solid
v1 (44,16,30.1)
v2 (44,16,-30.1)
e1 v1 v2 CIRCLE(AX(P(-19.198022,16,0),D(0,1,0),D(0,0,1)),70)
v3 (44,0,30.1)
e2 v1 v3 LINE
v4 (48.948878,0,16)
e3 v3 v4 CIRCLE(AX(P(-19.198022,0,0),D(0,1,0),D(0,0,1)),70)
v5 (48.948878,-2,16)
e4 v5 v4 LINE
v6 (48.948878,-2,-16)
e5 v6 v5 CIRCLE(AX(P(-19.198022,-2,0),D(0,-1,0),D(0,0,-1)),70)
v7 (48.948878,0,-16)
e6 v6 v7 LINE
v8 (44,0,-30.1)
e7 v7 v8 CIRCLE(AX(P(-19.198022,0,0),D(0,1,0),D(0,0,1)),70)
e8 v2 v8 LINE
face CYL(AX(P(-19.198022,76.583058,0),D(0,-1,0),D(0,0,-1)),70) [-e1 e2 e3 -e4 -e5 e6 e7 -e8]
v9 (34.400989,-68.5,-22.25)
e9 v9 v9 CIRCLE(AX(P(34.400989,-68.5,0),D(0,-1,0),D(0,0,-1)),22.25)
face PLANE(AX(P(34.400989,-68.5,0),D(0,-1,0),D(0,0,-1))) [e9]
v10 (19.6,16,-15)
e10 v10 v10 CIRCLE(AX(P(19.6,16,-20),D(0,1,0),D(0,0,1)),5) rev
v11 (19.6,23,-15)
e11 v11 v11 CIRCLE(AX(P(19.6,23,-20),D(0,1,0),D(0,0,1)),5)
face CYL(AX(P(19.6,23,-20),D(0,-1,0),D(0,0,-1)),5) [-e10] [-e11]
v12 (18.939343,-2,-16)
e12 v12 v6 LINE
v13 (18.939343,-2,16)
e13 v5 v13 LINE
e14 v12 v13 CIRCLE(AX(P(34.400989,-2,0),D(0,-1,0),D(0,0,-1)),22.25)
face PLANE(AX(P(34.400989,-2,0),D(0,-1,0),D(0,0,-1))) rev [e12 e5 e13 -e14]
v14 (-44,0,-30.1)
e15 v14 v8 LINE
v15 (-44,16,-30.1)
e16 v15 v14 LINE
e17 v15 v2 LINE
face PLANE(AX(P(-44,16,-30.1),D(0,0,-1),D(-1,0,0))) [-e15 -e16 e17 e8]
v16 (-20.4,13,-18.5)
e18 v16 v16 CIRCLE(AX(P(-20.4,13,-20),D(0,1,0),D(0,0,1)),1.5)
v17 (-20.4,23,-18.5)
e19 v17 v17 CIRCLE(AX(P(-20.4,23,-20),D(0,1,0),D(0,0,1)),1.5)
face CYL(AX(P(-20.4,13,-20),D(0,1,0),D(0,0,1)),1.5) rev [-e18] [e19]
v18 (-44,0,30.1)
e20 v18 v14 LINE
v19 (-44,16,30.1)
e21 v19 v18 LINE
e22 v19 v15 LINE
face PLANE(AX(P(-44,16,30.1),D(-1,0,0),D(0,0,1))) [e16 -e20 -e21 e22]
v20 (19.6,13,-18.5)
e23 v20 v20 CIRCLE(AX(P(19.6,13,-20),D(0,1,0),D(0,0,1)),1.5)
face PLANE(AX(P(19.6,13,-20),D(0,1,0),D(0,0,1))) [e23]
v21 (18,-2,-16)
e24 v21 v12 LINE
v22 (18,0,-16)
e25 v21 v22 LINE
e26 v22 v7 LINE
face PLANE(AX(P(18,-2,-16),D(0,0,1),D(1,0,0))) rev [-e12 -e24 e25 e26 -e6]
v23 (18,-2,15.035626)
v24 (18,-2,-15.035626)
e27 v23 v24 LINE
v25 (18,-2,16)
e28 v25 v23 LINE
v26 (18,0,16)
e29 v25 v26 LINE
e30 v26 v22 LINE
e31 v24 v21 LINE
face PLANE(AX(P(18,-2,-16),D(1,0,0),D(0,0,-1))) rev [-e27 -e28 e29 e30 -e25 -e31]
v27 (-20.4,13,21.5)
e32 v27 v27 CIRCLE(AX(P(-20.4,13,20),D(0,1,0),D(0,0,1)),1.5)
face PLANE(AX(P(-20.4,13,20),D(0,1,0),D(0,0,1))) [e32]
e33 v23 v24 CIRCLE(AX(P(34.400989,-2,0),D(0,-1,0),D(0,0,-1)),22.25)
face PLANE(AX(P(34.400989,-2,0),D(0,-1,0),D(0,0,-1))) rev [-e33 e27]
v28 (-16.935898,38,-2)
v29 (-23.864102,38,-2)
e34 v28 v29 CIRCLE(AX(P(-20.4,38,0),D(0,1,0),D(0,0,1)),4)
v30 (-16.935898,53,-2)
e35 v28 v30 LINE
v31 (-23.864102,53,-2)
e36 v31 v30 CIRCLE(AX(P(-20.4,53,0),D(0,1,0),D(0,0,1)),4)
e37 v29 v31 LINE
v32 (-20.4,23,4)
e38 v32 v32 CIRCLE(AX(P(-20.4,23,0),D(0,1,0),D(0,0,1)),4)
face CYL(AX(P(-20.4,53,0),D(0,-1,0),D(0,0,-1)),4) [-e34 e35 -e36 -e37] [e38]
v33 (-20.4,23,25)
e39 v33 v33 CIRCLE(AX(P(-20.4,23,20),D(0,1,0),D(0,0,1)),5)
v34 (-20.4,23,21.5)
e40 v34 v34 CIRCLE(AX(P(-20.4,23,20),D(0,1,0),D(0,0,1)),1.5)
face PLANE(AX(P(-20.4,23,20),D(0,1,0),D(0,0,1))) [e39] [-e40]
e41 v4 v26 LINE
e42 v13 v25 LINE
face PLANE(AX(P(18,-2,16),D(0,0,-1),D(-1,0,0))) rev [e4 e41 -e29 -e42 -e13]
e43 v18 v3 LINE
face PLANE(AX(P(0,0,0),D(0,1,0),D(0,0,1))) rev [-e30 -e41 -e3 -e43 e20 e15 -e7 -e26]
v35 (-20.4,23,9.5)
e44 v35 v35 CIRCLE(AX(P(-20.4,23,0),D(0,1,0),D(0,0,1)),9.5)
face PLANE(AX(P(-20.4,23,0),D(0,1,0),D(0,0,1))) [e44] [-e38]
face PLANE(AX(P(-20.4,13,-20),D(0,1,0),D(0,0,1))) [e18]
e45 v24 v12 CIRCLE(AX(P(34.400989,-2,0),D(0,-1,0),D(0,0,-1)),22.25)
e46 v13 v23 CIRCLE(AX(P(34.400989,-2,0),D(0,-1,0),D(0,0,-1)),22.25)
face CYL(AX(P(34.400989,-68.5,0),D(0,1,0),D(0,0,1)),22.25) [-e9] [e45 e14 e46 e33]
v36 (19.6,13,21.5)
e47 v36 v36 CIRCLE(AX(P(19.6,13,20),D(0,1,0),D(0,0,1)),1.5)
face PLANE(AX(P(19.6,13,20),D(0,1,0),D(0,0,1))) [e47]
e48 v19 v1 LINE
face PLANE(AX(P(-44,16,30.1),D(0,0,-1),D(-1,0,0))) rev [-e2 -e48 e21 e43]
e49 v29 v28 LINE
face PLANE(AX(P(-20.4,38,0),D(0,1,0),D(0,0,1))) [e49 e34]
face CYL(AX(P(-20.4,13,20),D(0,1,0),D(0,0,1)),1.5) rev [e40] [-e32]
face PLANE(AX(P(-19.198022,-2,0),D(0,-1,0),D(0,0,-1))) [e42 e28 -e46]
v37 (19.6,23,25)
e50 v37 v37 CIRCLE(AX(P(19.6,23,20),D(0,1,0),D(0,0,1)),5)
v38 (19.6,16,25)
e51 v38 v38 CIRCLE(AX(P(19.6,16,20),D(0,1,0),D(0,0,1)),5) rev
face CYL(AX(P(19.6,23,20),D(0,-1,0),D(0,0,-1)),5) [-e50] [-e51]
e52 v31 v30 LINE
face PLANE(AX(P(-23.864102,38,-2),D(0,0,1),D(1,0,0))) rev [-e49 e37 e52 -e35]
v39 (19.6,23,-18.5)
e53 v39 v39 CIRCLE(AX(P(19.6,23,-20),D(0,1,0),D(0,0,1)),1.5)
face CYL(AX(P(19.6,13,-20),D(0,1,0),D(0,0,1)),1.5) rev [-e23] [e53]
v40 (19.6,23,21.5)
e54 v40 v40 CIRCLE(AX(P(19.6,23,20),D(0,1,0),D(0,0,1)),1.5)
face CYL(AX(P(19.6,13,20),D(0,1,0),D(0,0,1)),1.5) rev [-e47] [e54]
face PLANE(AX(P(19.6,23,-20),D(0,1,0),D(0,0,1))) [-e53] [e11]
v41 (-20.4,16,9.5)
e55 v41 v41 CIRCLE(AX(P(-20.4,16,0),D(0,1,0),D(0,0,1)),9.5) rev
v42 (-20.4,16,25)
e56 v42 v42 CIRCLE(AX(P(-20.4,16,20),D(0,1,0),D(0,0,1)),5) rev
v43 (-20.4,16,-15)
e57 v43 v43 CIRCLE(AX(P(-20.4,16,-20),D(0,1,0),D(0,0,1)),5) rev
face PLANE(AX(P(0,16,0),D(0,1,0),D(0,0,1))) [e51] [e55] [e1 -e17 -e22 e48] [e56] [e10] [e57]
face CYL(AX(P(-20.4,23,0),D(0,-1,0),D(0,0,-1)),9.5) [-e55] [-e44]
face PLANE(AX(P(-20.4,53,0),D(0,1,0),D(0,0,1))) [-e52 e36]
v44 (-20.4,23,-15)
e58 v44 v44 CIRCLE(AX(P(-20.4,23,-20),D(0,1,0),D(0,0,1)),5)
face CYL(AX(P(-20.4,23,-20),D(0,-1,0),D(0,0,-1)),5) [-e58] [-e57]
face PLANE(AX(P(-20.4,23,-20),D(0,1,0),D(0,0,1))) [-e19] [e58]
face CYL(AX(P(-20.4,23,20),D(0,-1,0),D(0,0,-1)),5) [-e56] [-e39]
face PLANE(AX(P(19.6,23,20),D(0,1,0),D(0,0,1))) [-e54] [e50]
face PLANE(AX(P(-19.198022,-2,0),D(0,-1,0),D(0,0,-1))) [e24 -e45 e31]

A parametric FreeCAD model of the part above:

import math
import FreeCAD as App
import Part
import Sketcher
from FreeCAD import Vector


def add_polygon(sketch, points):
    """Adds a closed chain of lines whose ends are joined by coincident constraints."""
    first, n = sketch.GeometryCount, len(points)
    for a, b in zip(points, points[1:] + points[:1]):
        sketch.addGeometry(Part.LineSegment(App.Vector(*a, 0), App.Vector(*b, 0)), False)
    for i in range(n):
        sketch.addConstraint(Sketcher.Constraint("Coincident", first + i, 2, first + (i + 1) % n, 1))

doc = App.newDocument("Part")
body = doc.addObject("PartDesign::Body", "Body")

# Sketch on XZ plane
sketch1 = body.newObject("Sketcher::SketchObject", "Sketch")
sketch1.AttachmentSupport = (doc.getObject("XZ_Plane"), [""])
sketch1.MapMode = "FlatFace"
add_polygon(sketch1, [(-44, -30), (-44, 30), (44, 30), (44, -30)])  # lines 0-3
sketch1.addConstraint(Sketcher.Constraint("Vertical", 0))
sketch1.addConstraint(Sketcher.Constraint("Horizontal", 1))
sketch1.addConstraint(Sketcher.Constraint("Vertical", 2))
sketch1.addConstraint(Sketcher.Constraint("Horizontal", 3))
sketch1.addConstraint(Sketcher.Constraint("Symmetric", 0, 2, 2, 2, -1, 1))
sketch1.addConstraint(Sketcher.Constraint("DistanceX", 1, 1, 1, 2, 88.0))
sketch1.addConstraint(Sketcher.Constraint("DistanceY", 0, 1, 0, 2, 60.2))
pad1 = body.newObject("PartDesign::Pad", "Pad")
pad1.Profile = sketch1
pad1.Length = 16
pad1.Reversed = True

# Sketch on XZ plane
sketch2 = body.newObject("Sketcher::SketchObject", "Sketch001")
sketch2.AttachmentSupport = (doc.getObject("XZ_Plane"), [""])
sketch2.MapMode = "FlatFace"
sketch2.addGeometry(Part.Circle(Vector(-20, -20, 0), Vector(0, 0, 1), 5), False)
sketch2.addGeometry(Part.Circle(Vector(20, -20, 0), Vector(0, 0, 1), 5), False)
sketch2.addGeometry(Part.Circle(Vector(20, 20, 0), Vector(0, 0, 1), 5), False)
sketch2.addGeometry(Part.Circle(Vector(-20, 20, 0), Vector(0, 0, 1), 5), False)
sketch2.addGeometry(Part.Circle(Vector(-20, 0, 0), Vector(0, 0, 1), 10), False)
sketch2.addConstraint(Sketcher.Constraint("Equal", 0, 1))
sketch2.addConstraint(Sketcher.Constraint("Equal", 1, 2))
sketch2.addConstraint(Sketcher.Constraint("Equal", 2, 3))
sketch2.addConstraint(Sketcher.Constraint("Symmetric", 1, 3, 2, 3, -1))
sketch2.addConstraint(Sketcher.Constraint("Symmetric", 0, 3, 3, 3, -1))
sketch2.addConstraint(Sketcher.Constraint("PointOnObject", 4, 3, -1))
sketch2.addConstraint(Sketcher.Constraint("Horizontal", 0, 3, 1, 3))
sketch2.addConstraint(Sketcher.Constraint("Vertical", 3, 3, 4, 3))
sketch2.addConstraint(Sketcher.Constraint("Diameter", 0, 10.0))
sketch2.addConstraint(Sketcher.Constraint("Diameter", 4, 19.0))
sketch2.addConstraint(Sketcher.Constraint("DistanceY", 0, 3, -1, 1, 20.0))
sketch2.addConstraint(Sketcher.Constraint("DistanceX", 0, 3, 1, 3, 40.0))
sketch2.addConstraint(Sketcher.Constraint("DistanceX", 0, 3, -1, 1, 20.4))
pad2 = body.newObject("PartDesign::Pad", "Pad001")
pad2.Profile = sketch2
pad2.Length = 23
pad2.Reversed = True

# Sketch on XZ plane
sketch3 = body.newObject("Sketcher::SketchObject", "Sketch002")
sketch3.AttachmentSupport = (doc.getObject("XZ_Plane"), [""])
sketch3.MapMode = "FlatFace"
sketch3.AttachmentOffset = App.Placement(Vector(0, 0, -23), App.Rotation())
sketch3.addGeometry(Part.Circle(Vector(-20.4, 0, 0), Vector(0, 0, 1), 4), False)
sketch3.addConstraint(Sketcher.Constraint("PointOnObject", 0, 3, -1))
sketch3.addConstraint(Sketcher.Constraint("Diameter", 0, 8.0))
sketch3.addConstraint(Sketcher.Constraint("DistanceX", 0, 3, -1, 1, 20.4))
pad3 = body.newObject("PartDesign::Pad", "Pad002")
pad3.Profile = sketch3
pad3.Length = 30
pad3.Reversed = True

# Sketch on XZ plane
sketch4 = body.newObject("Sketcher::SketchObject", "Sketch003")
sketch4.AttachmentSupport = (doc.getObject("XZ_Plane"), [""])
sketch4.MapMode = "FlatFace"
sketch4.AttachmentOffset = App.Placement(Vector(0, 0, -53), App.Rotation())
sketch4.addGeometry(Part.LineSegment(Vector(-23.9, -2, 0), Vector(-16.9, -2, 0)), False)
sketch4.addGeometry(Part.ArcOfCircle(Part.Circle(Vector(-20.4, 0, 0), Vector(0, 0, 1), 4), math.radians(-150), math.radians(-30)), False)
sketch4.addConstraint(Sketcher.Constraint("Coincident", 0, 1, 1, 1))
sketch4.addConstraint(Sketcher.Constraint("Coincident", 1, 2, 0, 2))
sketch4.addConstraint(Sketcher.Constraint("Horizontal", 0))
sketch4.addConstraint(Sketcher.Constraint("PointOnObject", 1, 3, -1))
sketch4.addConstraint(Sketcher.Constraint("Radius", 1, 4.0))
sketch4.addConstraint(Sketcher.Constraint("DistanceY", 0, 1, -1, 1, 2.0))
sketch4.addConstraint(Sketcher.Constraint("DistanceX", 1, 3, -1, 1, 20.4))
pocket1 = body.newObject("PartDesign::Pocket", "Pocket")
pocket1.Profile = sketch4
pocket1.Length = 15
pocket1.Reversed = True

# Sketch on XZ plane
sketch5 = body.newObject("Sketcher::SketchObject", "Sketch004")
sketch5.AttachmentSupport = (doc.getObject("XZ_Plane"), [""])
sketch5.MapMode = "FlatFace"
sketch5.AttachmentOffset = App.Placement(Vector(0, 0, -23), App.Rotation())
sketch5.addGeometry(Part.Circle(Vector(-20.4, -20, 0), Vector(0, 0, 1), 1.5), False)
sketch5.addGeometry(Part.Circle(Vector(19.6, -20, 0), Vector(0, 0, 1), 1.5), False)
sketch5.addGeometry(Part.Circle(Vector(19.6, 20, 0), Vector(0, 0, 1), 1.5), False)
sketch5.addGeometry(Part.Circle(Vector(-20.4, 20, 0), Vector(0, 0, 1), 1.5), False)
sketch5.addConstraint(Sketcher.Constraint("Equal", 0, 1))
sketch5.addConstraint(Sketcher.Constraint("Equal", 1, 2))
sketch5.addConstraint(Sketcher.Constraint("Equal", 2, 3))
sketch5.addConstraint(Sketcher.Constraint("Symmetric", 1, 3, 2, 3, -1))
sketch5.addConstraint(Sketcher.Constraint("Symmetric", 0, 3, 3, 3, -1))
sketch5.addConstraint(Sketcher.Constraint("Horizontal", 0, 3, 1, 3))
sketch5.addConstraint(Sketcher.Constraint("Diameter", 0, 3.0))
sketch5.addConstraint(Sketcher.Constraint("DistanceY", 0, 3, -1, 1, 20.0))
sketch5.addConstraint(Sketcher.Constraint("DistanceX", 0, 3, 1, 3, 40.0))
sketch5.addConstraint(Sketcher.Constraint("DistanceX", 0, 3, -1, 1, 20.4))
pocket2 = body.newObject("PartDesign::Pocket", "Pocket001")
pocket2.Profile = sketch5
pocket2.Length = 10
pocket2.Reversed = True

# Sketch on XZ plane
sketch6 = body.newObject("Sketcher::SketchObject", "Sketch005")
sketch6.AttachmentSupport = (doc.getObject("XZ_Plane"), [""])
sketch6.MapMode = "FlatFace"
sketch6.addGeometry(Part.LineSegment(Vector(44, -30, 0), Vector(44, 30, 0)), False)
sketch6.addGeometry(Part.ArcOfCircle(Part.Circle(Vector(-19, 0, 0), Vector(0, 0, 1), 70), math.radians(-25), math.radians(25)), False)
sketch6.addConstraint(Sketcher.Constraint("Coincident", 0, 1, 1, 1))
sketch6.addConstraint(Sketcher.Constraint("Coincident", 1, 2, 0, 2))
sketch6.addConstraint(Sketcher.Constraint("Vertical", 0))
sketch6.addConstraint(Sketcher.Constraint("PointOnObject", 1, 3, -1))
sketch6.addConstraint(Sketcher.Constraint("Radius", 1, 70.0))
sketch6.addConstraint(Sketcher.Constraint("DistanceY", 0, 1, 0, 2, 60.2))
sketch6.addConstraint(Sketcher.Constraint("DistanceX", -1, 1, 0, 1, 44.0))
pad4 = body.newObject("PartDesign::Pad", "Pad003")
pad4.Profile = sketch6
pad4.Length = 16
pad4.Reversed = True

# Sketch on XZ plane
sketch7 = body.newObject("Sketcher::SketchObject", "Sketch006")
sketch7.AttachmentSupport = (doc.getObject("XZ_Plane"), [""])
sketch7.MapMode = "FlatFace"
sketch7.addGeometry(Part.LineSegment(Vector(18, -16, 0), Vector(49, -16, 0)), False)
sketch7.addGeometry(Part.ArcOfCircle(Part.Circle(Vector(-19, 0, 0), Vector(0, 0, 1), 70), math.radians(-13), math.radians(13)), False)
sketch7.addGeometry(Part.LineSegment(Vector(49, 16, 0), Vector(18, 16, 0)), False)
sketch7.addGeometry(Part.LineSegment(Vector(18, 16, 0), Vector(18, -16, 0)), False)
sketch7.addConstraint(Sketcher.Constraint("Coincident", 0, 2, 1, 1))
sketch7.addConstraint(Sketcher.Constraint("Coincident", 1, 2, 2, 1))
sketch7.addConstraint(Sketcher.Constraint("Coincident", 2, 2, 3, 1))
sketch7.addConstraint(Sketcher.Constraint("Coincident", 3, 2, 0, 1))
sketch7.addConstraint(Sketcher.Constraint("Horizontal", 0))
sketch7.addConstraint(Sketcher.Constraint("Horizontal", 2))
sketch7.addConstraint(Sketcher.Constraint("Vertical", 3))
sketch7.addConstraint(Sketcher.Constraint("Symmetric", 0, 2, 1, 2, -1))
sketch7.addConstraint(Sketcher.Constraint("Radius", 1, 70.0))
sketch7.addConstraint(Sketcher.Constraint("DistanceY", 3, 2, 3, 1, 32.0))
sketch7.addConstraint(Sketcher.Constraint("DistanceX", -1, 1, 2, 2, 18.0))
sketch7.addConstraint(Sketcher.Constraint("DistanceX", 0, 1, 0, 2, 30.948878))
pad5 = body.newObject("PartDesign::Pad", "Pad004")
pad5.Profile = sketch7
pad5.Length = 2

# Sketch on XZ plane
sketch8 = body.newObject("Sketcher::SketchObject", "Sketch007")
sketch8.AttachmentSupport = (doc.getObject("XZ_Plane"), [""])
sketch8.MapMode = "FlatFace"
sketch8.AttachmentOffset = App.Placement(Vector(0, 0, 2), App.Rotation())
sketch8.addGeometry(Part.Circle(Vector(34, 0, 0), Vector(0, 0, 1), 22), False)
sketch8.addConstraint(Sketcher.Constraint("PointOnObject", 0, 3, -1))
sketch8.addConstraint(Sketcher.Constraint("Diameter", 0, 44.5))
sketch8.addConstraint(Sketcher.Constraint("DistanceX", -1, 1, 0, 3, 34.400989))
pad6 = body.newObject("PartDesign::Pad", "Pad005")
pad6.Profile = sketch8
pad6.Length = 66.5

doc.recompute()
